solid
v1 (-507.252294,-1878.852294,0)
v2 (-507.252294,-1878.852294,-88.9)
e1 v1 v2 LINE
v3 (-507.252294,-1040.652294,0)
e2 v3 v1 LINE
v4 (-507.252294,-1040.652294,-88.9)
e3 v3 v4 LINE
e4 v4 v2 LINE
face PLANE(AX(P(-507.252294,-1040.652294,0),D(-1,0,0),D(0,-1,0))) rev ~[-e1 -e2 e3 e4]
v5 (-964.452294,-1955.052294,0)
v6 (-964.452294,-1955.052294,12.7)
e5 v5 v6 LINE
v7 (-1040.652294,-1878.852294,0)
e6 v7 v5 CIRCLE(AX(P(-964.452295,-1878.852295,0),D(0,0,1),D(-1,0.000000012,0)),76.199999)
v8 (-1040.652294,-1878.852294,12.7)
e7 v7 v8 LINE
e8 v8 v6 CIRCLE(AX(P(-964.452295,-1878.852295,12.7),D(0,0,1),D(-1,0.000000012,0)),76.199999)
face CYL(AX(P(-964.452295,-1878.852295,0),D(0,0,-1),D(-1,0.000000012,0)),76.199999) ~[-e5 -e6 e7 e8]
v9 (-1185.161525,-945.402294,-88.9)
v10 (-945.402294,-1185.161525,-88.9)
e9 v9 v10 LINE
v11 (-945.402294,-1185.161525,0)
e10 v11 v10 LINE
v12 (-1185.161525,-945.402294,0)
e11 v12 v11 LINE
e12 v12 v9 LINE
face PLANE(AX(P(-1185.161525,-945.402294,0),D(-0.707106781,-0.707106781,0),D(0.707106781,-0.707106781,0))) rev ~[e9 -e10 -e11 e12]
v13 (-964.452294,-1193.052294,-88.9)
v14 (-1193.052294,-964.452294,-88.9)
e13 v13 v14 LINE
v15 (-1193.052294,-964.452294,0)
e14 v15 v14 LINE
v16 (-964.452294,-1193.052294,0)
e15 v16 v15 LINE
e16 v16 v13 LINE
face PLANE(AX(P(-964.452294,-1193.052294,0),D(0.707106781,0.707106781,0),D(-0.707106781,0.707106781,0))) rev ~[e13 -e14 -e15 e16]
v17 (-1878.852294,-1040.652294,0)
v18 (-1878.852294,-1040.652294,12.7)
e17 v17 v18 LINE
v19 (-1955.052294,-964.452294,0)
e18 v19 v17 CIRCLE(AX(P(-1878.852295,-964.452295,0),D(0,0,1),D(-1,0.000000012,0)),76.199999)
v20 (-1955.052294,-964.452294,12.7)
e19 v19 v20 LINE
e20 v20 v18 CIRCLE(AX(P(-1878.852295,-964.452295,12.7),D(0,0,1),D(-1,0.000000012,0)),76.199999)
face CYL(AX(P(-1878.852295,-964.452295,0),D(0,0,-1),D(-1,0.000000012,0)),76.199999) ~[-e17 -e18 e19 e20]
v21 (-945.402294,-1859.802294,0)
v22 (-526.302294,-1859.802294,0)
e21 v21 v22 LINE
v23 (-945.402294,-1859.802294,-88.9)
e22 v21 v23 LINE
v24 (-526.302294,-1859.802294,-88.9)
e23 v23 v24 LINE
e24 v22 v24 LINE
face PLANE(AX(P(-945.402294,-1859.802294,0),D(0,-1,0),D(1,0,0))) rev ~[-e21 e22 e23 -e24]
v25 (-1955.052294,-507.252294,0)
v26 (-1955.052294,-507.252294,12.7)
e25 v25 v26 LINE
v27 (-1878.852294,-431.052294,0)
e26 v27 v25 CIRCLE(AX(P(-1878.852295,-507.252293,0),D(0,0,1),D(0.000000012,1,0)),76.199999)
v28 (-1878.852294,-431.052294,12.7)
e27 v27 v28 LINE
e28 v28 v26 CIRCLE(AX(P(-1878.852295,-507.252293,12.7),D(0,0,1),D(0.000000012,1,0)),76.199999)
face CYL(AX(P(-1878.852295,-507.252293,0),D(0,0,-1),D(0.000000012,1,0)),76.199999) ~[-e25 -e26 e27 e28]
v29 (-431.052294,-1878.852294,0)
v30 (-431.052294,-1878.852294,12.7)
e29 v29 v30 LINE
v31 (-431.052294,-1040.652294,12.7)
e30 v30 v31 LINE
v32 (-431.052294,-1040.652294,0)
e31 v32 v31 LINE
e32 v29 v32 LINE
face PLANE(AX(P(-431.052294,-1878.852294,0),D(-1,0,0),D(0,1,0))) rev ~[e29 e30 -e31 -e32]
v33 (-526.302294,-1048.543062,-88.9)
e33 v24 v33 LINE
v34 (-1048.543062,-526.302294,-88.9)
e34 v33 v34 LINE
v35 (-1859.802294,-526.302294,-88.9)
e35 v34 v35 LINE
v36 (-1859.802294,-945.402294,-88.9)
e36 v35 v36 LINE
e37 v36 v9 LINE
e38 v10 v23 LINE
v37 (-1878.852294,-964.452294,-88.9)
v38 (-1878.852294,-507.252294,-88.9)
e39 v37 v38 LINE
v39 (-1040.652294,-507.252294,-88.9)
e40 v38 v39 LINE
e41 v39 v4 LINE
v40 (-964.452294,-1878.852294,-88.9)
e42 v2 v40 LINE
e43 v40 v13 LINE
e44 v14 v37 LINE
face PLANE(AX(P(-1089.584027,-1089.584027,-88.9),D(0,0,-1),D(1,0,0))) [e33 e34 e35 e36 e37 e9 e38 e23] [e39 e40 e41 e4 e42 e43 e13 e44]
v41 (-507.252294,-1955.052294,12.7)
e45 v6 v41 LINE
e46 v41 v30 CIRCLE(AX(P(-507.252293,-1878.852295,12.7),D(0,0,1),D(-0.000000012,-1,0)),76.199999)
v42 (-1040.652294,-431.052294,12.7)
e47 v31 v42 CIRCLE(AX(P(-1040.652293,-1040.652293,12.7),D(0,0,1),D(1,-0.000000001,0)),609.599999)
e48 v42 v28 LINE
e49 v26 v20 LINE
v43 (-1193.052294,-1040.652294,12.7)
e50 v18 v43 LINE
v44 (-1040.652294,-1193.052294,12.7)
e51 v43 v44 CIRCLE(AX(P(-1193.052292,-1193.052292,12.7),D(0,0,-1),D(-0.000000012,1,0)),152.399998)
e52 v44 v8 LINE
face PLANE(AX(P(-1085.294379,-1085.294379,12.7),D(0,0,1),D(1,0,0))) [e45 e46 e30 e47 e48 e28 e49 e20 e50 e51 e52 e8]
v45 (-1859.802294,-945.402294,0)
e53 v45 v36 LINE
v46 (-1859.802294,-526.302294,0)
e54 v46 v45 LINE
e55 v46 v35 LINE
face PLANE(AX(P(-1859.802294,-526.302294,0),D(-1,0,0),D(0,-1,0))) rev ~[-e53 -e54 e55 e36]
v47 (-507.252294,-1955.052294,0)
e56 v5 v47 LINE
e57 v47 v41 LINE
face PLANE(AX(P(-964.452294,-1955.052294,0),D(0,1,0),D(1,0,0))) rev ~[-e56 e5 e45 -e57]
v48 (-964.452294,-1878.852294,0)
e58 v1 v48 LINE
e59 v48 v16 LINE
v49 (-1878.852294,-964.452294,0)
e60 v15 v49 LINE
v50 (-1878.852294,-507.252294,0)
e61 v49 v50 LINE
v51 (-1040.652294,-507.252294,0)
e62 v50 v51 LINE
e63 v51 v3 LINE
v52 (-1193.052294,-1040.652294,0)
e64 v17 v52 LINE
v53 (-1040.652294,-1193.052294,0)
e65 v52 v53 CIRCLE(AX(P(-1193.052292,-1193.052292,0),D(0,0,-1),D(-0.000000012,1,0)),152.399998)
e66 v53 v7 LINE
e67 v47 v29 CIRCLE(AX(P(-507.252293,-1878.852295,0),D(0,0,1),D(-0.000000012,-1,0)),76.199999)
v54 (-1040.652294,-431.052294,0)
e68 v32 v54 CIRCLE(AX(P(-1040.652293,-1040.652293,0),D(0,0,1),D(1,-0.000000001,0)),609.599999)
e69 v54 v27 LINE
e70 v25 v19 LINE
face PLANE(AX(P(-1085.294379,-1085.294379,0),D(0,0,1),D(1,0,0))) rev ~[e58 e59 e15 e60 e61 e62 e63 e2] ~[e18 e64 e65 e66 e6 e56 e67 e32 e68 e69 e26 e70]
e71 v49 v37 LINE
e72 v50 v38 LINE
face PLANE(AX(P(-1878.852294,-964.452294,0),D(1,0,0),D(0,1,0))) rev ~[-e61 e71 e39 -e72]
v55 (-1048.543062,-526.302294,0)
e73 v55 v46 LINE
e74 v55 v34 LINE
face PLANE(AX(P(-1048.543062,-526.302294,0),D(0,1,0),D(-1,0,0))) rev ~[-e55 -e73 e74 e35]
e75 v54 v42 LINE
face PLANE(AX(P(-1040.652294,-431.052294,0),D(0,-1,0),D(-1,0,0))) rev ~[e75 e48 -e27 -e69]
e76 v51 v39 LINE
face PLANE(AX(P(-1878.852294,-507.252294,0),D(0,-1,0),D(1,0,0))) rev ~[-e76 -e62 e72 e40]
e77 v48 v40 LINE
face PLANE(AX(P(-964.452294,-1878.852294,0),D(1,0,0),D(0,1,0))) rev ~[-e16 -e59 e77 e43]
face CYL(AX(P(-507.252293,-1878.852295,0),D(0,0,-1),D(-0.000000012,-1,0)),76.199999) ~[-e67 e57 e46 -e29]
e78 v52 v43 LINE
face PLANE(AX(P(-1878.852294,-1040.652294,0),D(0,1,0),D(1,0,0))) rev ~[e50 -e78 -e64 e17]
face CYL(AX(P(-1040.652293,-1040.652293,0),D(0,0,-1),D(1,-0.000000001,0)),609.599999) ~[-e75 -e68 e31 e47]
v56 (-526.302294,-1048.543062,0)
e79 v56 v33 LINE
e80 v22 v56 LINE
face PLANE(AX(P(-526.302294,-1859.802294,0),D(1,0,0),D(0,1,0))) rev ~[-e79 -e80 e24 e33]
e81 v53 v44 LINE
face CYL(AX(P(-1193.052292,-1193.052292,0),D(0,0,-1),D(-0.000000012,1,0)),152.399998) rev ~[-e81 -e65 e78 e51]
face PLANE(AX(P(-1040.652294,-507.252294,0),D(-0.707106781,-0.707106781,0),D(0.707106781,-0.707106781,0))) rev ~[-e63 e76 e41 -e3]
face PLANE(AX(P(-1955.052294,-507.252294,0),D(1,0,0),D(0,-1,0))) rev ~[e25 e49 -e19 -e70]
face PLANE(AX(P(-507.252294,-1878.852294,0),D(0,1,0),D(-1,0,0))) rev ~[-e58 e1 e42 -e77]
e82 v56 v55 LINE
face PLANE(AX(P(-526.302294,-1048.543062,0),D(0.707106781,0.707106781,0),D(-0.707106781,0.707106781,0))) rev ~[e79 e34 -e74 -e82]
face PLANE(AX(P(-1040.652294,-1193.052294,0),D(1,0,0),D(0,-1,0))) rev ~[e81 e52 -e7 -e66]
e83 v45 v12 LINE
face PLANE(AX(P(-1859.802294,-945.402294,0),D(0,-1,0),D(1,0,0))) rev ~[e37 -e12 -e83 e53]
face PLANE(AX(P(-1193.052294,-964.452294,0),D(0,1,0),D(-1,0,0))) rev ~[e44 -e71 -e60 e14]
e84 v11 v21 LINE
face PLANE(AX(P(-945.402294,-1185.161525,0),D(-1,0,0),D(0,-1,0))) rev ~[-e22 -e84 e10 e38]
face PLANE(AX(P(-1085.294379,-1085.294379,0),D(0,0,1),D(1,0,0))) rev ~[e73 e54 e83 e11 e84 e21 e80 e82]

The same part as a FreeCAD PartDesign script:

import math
import FreeCAD as App
import Part
import Sketcher
from FreeCAD import Vector
Q = App.Units.Quantity


def add_polygon(sketch, points):
    """Adds a closed chain of lines whose ends are joined by coincident constraints."""
    first, n = sketch.GeometryCount, len(points)
    for a, b in zip(points, points[1:] + points[:1]):
        sketch.addGeometry(Part.LineSegment(App.Vector(*a, 0), App.Vector(*b, 0)), False)
    for i in range(n):
        sketch.addConstraint(Sketcher.Constraint("Coincident", first + i, 2, first + (i + 1) % n, 1))

doc = App.newDocument("Part")
body = doc.addObject("PartDesign::Body", "Body")

sketch1 = body.newObject("Sketcher::SketchObject", "Sketch")
sketch1.AttachmentSupport = (doc.getObject("XY_Plane"), [""])
sketch1.MapMode = "FlatFace"
sketch1.addGeometry(Part.LineSegment(Vector(-1041, -431, 0), Vector(-1879, -431, 0)), False)
sketch1.addGeometry(Part.ArcOfCircle(Part.Circle(Vector(-1879, -507, 0), Vector(0, 0, 1), 76), math.radians(90), math.radians(180)), False)
sketch1.addGeometry(Part.LineSegment(Vector(-1955, -507, 0), Vector(-1955, -964, 0)), False)
sketch1.addGeometry(Part.ArcOfCircle(Part.Circle(Vector(-1879, -964, 0), Vector(0, 0, 1), 76), math.radians(180), math.radians(270)), False)
sketch1.addGeometry(Part.LineSegment(Vector(-1879, -1041, 0), Vector(-1193, -1041, 0)), False)
sketch1.addGeometry(Part.ArcOfCircle(Part.Circle(Vector(-1193, -1193, 0), Vector(0, 0, 1), 152), math.radians(0), math.radians(90)), False)
sketch1.addGeometry(Part.LineSegment(Vector(-1041, -1193, 0), Vector(-1041, -1879, 0)), False)
sketch1.addGeometry(Part.ArcOfCircle(Part.Circle(Vector(-964, -1879, 0), Vector(0, 0, 1), 76), math.radians(180), math.radians(270)), False)
sketch1.addGeometry(Part.LineSegment(Vector(-964, -1955, 0), Vector(-507, -1955, 0)), False)
sketch1.addGeometry(Part.ArcOfCircle(Part.Circle(Vector(-507, -1879, 0), Vector(0, 0, 1), 76), math.radians(-90), math.radians(0)), False)
sketch1.addGeometry(Part.LineSegment(Vector(-431, -1879, 0), Vector(-431, -1041, 0)), False)
sketch1.addGeometry(Part.ArcOfCircle(Part.Circle(Vector(-1041, -1041, 0), Vector(0, 0, 1), 610), math.radians(0), math.radians(90)), False)
sketch1.addConstraint(Sketcher.Constraint("Tangent", 0, 2, 1, 1))
sketch1.addConstraint(Sketcher.Constraint("Tangent", 1, 2, 2, 1))
sketch1.addConstraint(Sketcher.Constraint("Tangent", 2, 2, 3, 1))
sketch1.addConstraint(Sketcher.Constraint("Tangent", 3, 2, 4, 1))
sketch1.addConstraint(Sketcher.Constraint("Tangent", 4, 2, 5, 2))
sketch1.addConstraint(Sketcher.Constraint("Tangent", 5, 1, 6, 1))
sketch1.addConstraint(Sketcher.Constraint("Tangent", 6, 2, 7, 1))
sketch1.addConstraint(Sketcher.Constraint("Tangent", 7, 2, 8, 1))
sketch1.addConstraint(Sketcher.Constraint("Tangent", 8, 2, 9, 1))
sketch1.addConstraint(Sketcher.Constraint("Tangent", 9, 2, 10, 1))
sketch1.addConstraint(Sketcher.Constraint("Tangent", 10, 2, 11, 1))
sketch1.addConstraint(Sketcher.Constraint("Tangent", 11, 2, 0, 1))
sketch1.addConstraint(Sketcher.Constraint("Horizontal", 0))
sketch1.addConstraint(Sketcher.Constraint("Vertical", 2))
sketch1.addConstraint(Sketcher.Constraint("Horizontal", 4))
sketch1.addConstraint(Sketcher.Constraint("Vertical", 6))
sketch1.addConstraint(Sketcher.Constraint("Horizontal", 8))
sketch1.addConstraint(Sketcher.Constraint("Vertical", 10))
sketch1.addConstraint(Sketcher.Constraint("Equal", 1, 3))
sketch1.addConstraint(Sketcher.Constraint("Equal", 3, 7))
sketch1.addConstraint(Sketcher.Constraint("Equal", 7, 9))
sketch1.addConstraint(Sketcher.Constraint("Horizontal", 11, 3, 3, 2))
sketch1.addConstraint(Sketcher.Constraint("Vertical", 11, 3, 5, 1))
sketch1.addConstraint(Sketcher.Constraint("Equal", 4, 6))
sketch1.addConstraint(Sketcher.Constraint("Radius", 1, Q("3 in")))
sketch1.addConstraint(Sketcher.Constraint("Radius", 5, Q("5.9999999 in")))
sketch1.addConstraint(Sketcher.Constraint("Radius", 11, Q("24 in")))
sketch1.addConstraint(Sketcher.Constraint("DistanceX", 0, 2, 0, 1, Q("33 in")))
sketch1.addConstraint(Sketcher.Constraint("DistanceX", 1, 3, -1, 1, Q("1878.852295 mm")))
sketch1.addConstraint(Sketcher.Constraint("DistanceY", 1, 3, -1, 1, Q("507.252293 mm")))
pad1 = body.newObject("PartDesign::Pad", "Pad")
pad1.Profile = sketch1
pad1.Length = Q("0.5 in")

sketch2 = body.newObject("Sketcher::SketchObject", "Sketch001")
sketch2.AttachmentSupport = (doc.getObject("XY_Plane"), [""])
sketch2.MapMode = "FlatFace"
add_polygon(sketch2, [(-507, -1879), (-964, -1879), (-964, -1193), (-1193, -964), (-1879, -964), (-1879, -507), (-1041, -507), (-507, -1041)])
add_polygon(sketch2, [(-1185, -945), (-945, -1185), (-945, -1860), (-526, -1860), (-526, -1049), (-1049, -526), (-1860, -526), (-1860, -945)])
sketch2.addConstraint(Sketcher.Constraint("Horizontal", 0))
sketch2.addConstraint(Sketcher.Constraint("Vertical", 1))
sketch2.addConstraint(Sketcher.Constraint("Horizontal", 3))
sketch2.addConstraint(Sketcher.Constraint("Vertical", 4))
sketch2.addConstraint(Sketcher.Constraint("Horizontal", 5))
sketch2.addConstraint(Sketcher.Constraint("Vertical", 7))
sketch2.addConstraint(Sketcher.Constraint("Vertical", 9))
sketch2.addConstraint(Sketcher.Constraint("Horizontal", 10))
sketch2.addConstraint(Sketcher.Constraint("Vertical", 11))
sketch2.addConstraint(Sketcher.Constraint("Horizontal", 13))
sketch2.addConstraint(Sketcher.Constraint("Vertical", 14))
sketch2.addConstraint(Sketcher.Constraint("Horizontal", 15))
sketch2.addConstraint(Sketcher.Constraint("Parallel", 2, 6))
sketch2.addConstraint(Sketcher.Constraint("Parallel", 6, 8))
sketch2.addConstraint(Sketcher.Constraint("Parallel", 8, 12))
sketch2.addConstraint(Sketcher.Constraint("Equal", 3, 1))
sketch2.addConstraint(Sketcher.Constraint("Equal", 0, 4))
sketch2.addConstraint(Sketcher.Constraint("Equal", 5, 7))
sketch2.addConstraint(Sketcher.Constraint("Equal", 15, 9))
sketch2.addConstraint(Sketcher.Constraint("Equal", 13, 11))
sketch2.addConstraint(Sketcher.Constraint("DistanceX", 0, 2, 0, 1, Q("18 in")))
sketch2.addConstraint(Sketcher.Constraint("DistanceX", 3, 2, 3, 1, Q("27 in")))
sketch2.addConstraint(Sketcher.Constraint("DistanceX", 5, 1, 5, 2, Q("33 in")))
sketch2.addConstraint(Sketcher.Constraint("DistanceX", 10, 1, 10, 2, Q("16.5 in")))
sketch2.addConstraint(Sketcher.Constraint("DistanceX", 2, 2, 1, 2, Q("9 in")))
sketch2.addConstraint(Sketcher.Constraint("DistanceX", 1, 2, 8, 2, Q("0.75 in")))
sketch2.addConstraint(Sketcher.Constraint("DistanceY", 0, 2, 9, 2, Q("0.75 in")))
sketch2.addConstraint(Sketcher.Constraint("DistanceY", 12, 2, 5, 2, Q("0.75 in")))
sketch2.addConstraint(Sketcher.Constraint("DistanceX", 15, 1, 15, 2, Q("674.640769 mm")))
sketch2.addConstraint(Sketcher.Constraint("DistanceX", 13, 2, 13, 1, Q("811.259232 mm")))
sketch2.addConstraint(Sketcher.Constraint("DistanceY", 11, 2, -1, 1, Q("1048.543062 mm")))
sketch2.addConstraint(Sketcher.Constraint("DistanceX", 12, 2, -1, 1, Q("1048.543062 mm")))
pad2 = body.newObject("PartDesign::Pad", "Pad001")
pad2.Profile = sketch2
pad2.Length = Q("3.5 in")
pad2.Reversed = True

doc.recompute()
